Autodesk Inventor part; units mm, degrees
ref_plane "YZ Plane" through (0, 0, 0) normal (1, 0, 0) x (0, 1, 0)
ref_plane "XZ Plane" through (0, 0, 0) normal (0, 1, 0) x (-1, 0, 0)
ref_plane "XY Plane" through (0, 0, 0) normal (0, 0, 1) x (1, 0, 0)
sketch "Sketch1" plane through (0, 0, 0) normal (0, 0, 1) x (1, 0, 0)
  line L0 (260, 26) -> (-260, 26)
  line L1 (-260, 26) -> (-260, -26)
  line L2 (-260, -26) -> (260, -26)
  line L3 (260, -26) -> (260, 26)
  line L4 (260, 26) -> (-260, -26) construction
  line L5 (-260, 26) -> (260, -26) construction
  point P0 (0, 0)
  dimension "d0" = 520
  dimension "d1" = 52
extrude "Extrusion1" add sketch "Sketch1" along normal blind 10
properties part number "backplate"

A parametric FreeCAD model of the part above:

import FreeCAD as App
import Part
import Sketcher

V = App.Vector
Q = App.Units.Quantity

doc = App.newDocument("Part")
body = doc.addObject("PartDesign::Body", "Body")

# Sketch on XY plane
sketch1 = body.newObject("Sketcher::SketchObject", "Sketch")
sketch1.AttachmentSupport = (doc.getObject("XY_Plane"), [""])
sketch1.MapMode = "FlatFace"
sketch1.addGeometry([
    Part.LineSegment(V(260, -26, 0), V(260, 26, 0)),
    Part.LineSegment(V(260, 26, 0), V(-260, 26, 0)),
    Part.LineSegment(V(-260, 26, 0), V(-260, -26, 0)),
    Part.LineSegment(V(-260, -26, 0), V(260, -26, 0)),
], False)
sketch1.addConstraint([
    Sketcher.Constraint("Coincident", 0, 2, 1, 1),
    Sketcher.Constraint("Coincident", 1, 2, 2, 1),
    Sketcher.Constraint("Coincident", 2, 2, 3, 1),
    Sketcher.Constraint("Coincident", 3, 2, 0, 1),
    Sketcher.Constraint("Vertical", 0),
    Sketcher.Constraint("Horizontal", 1),
    Sketcher.Constraint("Vertical", 2),
    Sketcher.Constraint("Horizontal", 3),
    Sketcher.Constraint("Symmetric", 0, 2, 2, 2, -1, 1),
    Sketcher.Constraint("DistanceX", 1, 2, 1, 1, Q("520 mm")),
    Sketcher.Constraint("DistanceY", 0, 1, 0, 2, Q("52 mm")),
])
pad1 = body.newObject("PartDesign::Pad", "Pad")
pad1.Profile = sketch1
pad1.Length = 10

doc.recompute()
